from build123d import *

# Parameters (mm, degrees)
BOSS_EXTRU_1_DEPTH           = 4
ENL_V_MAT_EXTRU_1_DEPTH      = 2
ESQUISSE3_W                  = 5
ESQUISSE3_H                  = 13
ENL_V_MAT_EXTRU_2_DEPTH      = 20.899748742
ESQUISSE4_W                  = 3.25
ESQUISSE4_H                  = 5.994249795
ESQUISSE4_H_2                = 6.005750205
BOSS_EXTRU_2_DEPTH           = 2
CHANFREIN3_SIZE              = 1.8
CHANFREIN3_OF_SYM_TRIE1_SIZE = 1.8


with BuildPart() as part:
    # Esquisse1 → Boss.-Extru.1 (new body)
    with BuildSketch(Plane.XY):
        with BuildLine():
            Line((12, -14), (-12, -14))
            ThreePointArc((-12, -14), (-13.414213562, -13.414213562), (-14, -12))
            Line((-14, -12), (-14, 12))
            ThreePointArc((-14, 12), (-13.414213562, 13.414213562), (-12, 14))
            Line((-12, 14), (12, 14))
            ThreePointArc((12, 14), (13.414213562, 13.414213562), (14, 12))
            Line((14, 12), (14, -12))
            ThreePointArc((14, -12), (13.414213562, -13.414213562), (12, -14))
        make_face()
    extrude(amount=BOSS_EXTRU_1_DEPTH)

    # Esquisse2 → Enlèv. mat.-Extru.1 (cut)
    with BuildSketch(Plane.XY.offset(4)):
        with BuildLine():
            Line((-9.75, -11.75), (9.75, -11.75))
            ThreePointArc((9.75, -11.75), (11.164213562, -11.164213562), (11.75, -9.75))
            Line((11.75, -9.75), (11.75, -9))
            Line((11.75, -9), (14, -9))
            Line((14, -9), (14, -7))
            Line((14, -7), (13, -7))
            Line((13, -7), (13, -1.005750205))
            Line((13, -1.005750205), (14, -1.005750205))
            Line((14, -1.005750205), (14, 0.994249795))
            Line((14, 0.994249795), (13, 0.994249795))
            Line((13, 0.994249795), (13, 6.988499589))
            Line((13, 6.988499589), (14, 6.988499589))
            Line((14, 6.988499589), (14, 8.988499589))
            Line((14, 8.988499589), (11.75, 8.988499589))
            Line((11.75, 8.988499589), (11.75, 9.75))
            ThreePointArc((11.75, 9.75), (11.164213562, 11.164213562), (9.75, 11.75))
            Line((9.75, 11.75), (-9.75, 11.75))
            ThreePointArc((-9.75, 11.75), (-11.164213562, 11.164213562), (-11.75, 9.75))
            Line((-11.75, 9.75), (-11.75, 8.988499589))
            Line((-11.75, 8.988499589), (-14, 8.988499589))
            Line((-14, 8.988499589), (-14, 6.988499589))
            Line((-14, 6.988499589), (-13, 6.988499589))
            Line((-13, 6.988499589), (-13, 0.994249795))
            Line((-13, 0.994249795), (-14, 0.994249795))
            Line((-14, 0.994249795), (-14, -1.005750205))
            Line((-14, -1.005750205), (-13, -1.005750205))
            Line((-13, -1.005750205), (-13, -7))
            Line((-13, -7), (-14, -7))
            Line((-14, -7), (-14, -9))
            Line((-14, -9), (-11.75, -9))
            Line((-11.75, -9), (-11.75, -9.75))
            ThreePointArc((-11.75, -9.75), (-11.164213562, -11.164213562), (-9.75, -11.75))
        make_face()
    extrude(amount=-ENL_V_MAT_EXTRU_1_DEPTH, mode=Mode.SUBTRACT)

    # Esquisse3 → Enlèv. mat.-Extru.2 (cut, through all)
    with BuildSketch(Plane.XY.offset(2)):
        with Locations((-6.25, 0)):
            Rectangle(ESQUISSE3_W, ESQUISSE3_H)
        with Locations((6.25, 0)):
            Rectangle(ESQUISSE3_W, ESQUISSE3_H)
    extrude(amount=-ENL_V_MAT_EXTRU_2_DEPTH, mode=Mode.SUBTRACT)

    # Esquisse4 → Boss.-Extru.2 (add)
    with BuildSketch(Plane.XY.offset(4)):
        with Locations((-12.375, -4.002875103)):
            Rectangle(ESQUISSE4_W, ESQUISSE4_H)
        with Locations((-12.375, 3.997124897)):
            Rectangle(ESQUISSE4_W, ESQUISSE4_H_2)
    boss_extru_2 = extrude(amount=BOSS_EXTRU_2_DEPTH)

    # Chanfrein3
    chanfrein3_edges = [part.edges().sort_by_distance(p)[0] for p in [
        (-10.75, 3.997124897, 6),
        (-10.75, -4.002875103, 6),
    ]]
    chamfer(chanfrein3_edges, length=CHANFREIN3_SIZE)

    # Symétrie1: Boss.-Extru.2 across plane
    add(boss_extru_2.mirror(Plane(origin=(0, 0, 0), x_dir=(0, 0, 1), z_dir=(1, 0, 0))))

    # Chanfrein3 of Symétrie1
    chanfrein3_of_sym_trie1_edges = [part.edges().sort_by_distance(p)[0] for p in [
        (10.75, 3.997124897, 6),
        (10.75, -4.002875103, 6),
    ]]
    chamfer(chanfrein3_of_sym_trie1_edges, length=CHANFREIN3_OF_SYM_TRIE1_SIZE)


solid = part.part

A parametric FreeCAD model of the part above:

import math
import FreeCAD as App
import Part
import Sketcher
from FreeCAD import Vector


def edges_at(feature, points):
    """Names of the edges that pass closest to the given points."""
    edges = feature.Shape.Edges
    near = lambda p: min(range(len(edges)), key=lambda i: edges[i].distToShape(Part.Vertex(*p))[0])
    return sorted({f"Edge{near(p) + 1}" for p in points})


def add_polygon(sketch, points):
    """Adds a closed chain of lines whose ends are joined by coincident constraints."""
    first, n = sketch.GeometryCount, len(points)
    for a, b in zip(points, points[1:] + points[:1]):
        sketch.addGeometry(Part.LineSegment(App.Vector(*a, 0), App.Vector(*b, 0)), False)
    for i in range(n):
        sketch.addConstraint(Sketcher.Constraint("Coincident", first + i, 2, first + (i + 1) % n, 1))

doc = App.newDocument("Part")
params = doc.addObject("Spreadsheet::Sheet", "Params")
for row, (alias, value) in enumerate([
    ("sketch1_radius", "2 mm"),
    ("sketch1_width", "24 mm"),
    ("pad1_length", "4 mm"),
    ("sketch2_radius", "2 mm"),
    ("sketch2_width", "1 mm"),
    ("sketch2_height", "2 mm"),
    ("sketch2_width2", "19.5 mm"),
    ("sketch2_height2", "0.75 mm"),
    ("pocket1_length", "2 mm"),
    ("sketch3_width", "5 mm"),
    ("sketch3_height", "13 mm"),
    ("sketch4_width", "3.25 mm"),
    ("pad2_length", "2 mm"),
    ("chamfer_size", "1.8 mm"),
    ("chamfer2_size", "1.8 mm"),
], start=1):
    params.set(f"A{row}", alias)
    params.set(f"B{row}", "=" + value)
    params.setAlias(f"B{row}", alias)

body = doc.addObject("PartDesign::Body", "Body")

# Sketch on XY plane
sketch1 = body.newObject("Sketcher::SketchObject", "Sketch")
sketch1.AttachmentSupport = (doc.getObject("XY_Plane"), [""])
sketch1.MapMode = "FlatFace"
sketch1.addGeometry([
    Part.LineSegment(Vector(-12, -14, 0), Vector(12, -14, 0)),  # 0
    Part.ArcOfCircle(Part.Circle(Vector(12, -12, 0), Vector(0, 0, 1), 2), math.radians(-90), math.radians(0)),  # 1
    Part.LineSegment(Vector(14, -12, 0), Vector(14, 12, 0)),  # 2
    Part.ArcOfCircle(Part.Circle(Vector(12, 12, 0), Vector(0, 0, 1), 2), math.radians(0), math.radians(90)),  # 3
    Part.LineSegment(Vector(12, 14, 0), Vector(-12, 14, 0)),  # 4
    Part.ArcOfCircle(Part.Circle(Vector(-12, 12, 0), Vector(0, 0, 1), 2), math.radians(90), math.radians(180)),  # 5
    Part.LineSegment(Vector(-14, 12, 0), Vector(-14, -12, 0)),  # 6
    Part.ArcOfCircle(Part.Circle(Vector(-12, -12, 0), Vector(0, 0, 1), 2), math.radians(-180), math.radians(-90)),  # 7
], False)
sketch1.addConstraint([
    Sketcher.Constraint("Tangent", 0, 2, 1, 1),
    Sketcher.Constraint("Tangent", 1, 2, 2, 1),
    Sketcher.Constraint("Tangent", 2, 2, 3, 1),
    Sketcher.Constraint("Tangent", 3, 2, 4, 1),
    Sketcher.Constraint("Tangent", 4, 2, 5, 1),
    Sketcher.Constraint("Tangent", 5, 2, 6, 1),
    Sketcher.Constraint("Tangent", 6, 2, 7, 1),
    Sketcher.Constraint("Tangent", 7, 2, 0, 1),
    Sketcher.Constraint("Horizontal", 0),
    Sketcher.Constraint("Vertical", 2),
    Sketcher.Constraint("Horizontal", 4),
    Sketcher.Constraint("Vertical", 6),
    Sketcher.Constraint("Equal", 1, 3),
    Sketcher.Constraint("Equal", 3, 5),
    Sketcher.Constraint("Equal", 5, 7),
    Sketcher.Constraint("Symmetric", 1, 3, 5, 3, -1, 1),
    Sketcher.Constraint("Equal", 4, 2),
    Sketcher.Constraint("Radius", 1, 2.0),
    Sketcher.Constraint("DistanceX", 0, 1, 0, 2, 24.0),
])
sketch1.setExpression("Constraints[17]", "Params.sketch1_radius")
sketch1.setExpression("Constraints[18]", "Params.sketch1_width")
pad1 = body.newObject("PartDesign::Pad", "Pad")
pad1.Profile = sketch1
pad1.setExpression("Length", "Params.pad1_length")

# Sketch on XY plane
sketch2 = body.newObject("Sketcher::SketchObject", "Sketch001")
sketch2.AttachmentSupport = (doc.getObject("XY_Plane"), [""])
sketch2.MapMode = "FlatFace"
sketch2.AttachmentOffset = App.Placement(Vector(0, 0, 4), App.Rotation())
sketch2.addGeometry([
    Part.LineSegment(Vector(-9.8, -11.8, 0), Vector(9.8, -11.8, 0)),  # 0
    Part.ArcOfCircle(Part.Circle(Vector(9.7, -9.7, 0), Vector(0, 0, 1), 2), math.radians(-90), math.radians(0)),  # 1
    Part.LineSegment(Vector(11.8, -9.8, 0), Vector(11.8, -9, 0)),  # 2
    Part.LineSegment(Vector(11.8, -9, 0), Vector(14, -9, 0)),  # 3
    Part.LineSegment(Vector(14, -9, 0), Vector(14, -7, 0)),  # 4
    Part.LineSegment(Vector(14, -7, 0), Vector(13, -7, 0)),  # 5
    Part.LineSegment(Vector(13, -7, 0), Vector(13, -1, 0)),  # 6
    Part.LineSegment(Vector(13, -1, 0), Vector(14, -1, 0)),  # 7
    Part.LineSegment(Vector(14, -1, 0), Vector(14, 1, 0)),  # 8
    Part.LineSegment(Vector(14, 1, 0), Vector(13, 1, 0)),  # 9
    Part.LineSegment(Vector(13, 1, 0), Vector(13, 7, 0)),  # 10
    Part.LineSegment(Vector(13, 7, 0), Vector(14, 7, 0)),  # 11
    Part.LineSegment(Vector(14, 7, 0), Vector(14, 9, 0)),  # 12
    Part.LineSegment(Vector(14, 9, 0), Vector(11.8, 9, 0)),  # 13
    Part.LineSegment(Vector(11.8, 9, 0), Vector(11.8, 9.8, 0)),  # 14
    Part.ArcOfCircle(Part.Circle(Vector(9.7, 9.7, 0), Vector(0, 0, 1), 2), math.radians(0), math.radians(90)),  # 15
    Part.LineSegment(Vector(9.8, 11.8, 0), Vector(-9.8, 11.8, 0)),  # 16
    Part.ArcOfCircle(Part.Circle(Vector(-9.7, 9.7, 0), Vector(0, 0, 1), 2), math.radians(90), math.radians(180)),  # 17
    Part.LineSegment(Vector(-11.8, 9.8, 0), Vector(-11.8, 9, 0)),  # 18
    Part.LineSegment(Vector(-11.8, 9, 0), Vector(-14, 9, 0)),  # 19
    Part.LineSegment(Vector(-14, 9, 0), Vector(-14, 7, 0)),  # 20
    Part.LineSegment(Vector(-14, 7, 0), Vector(-13, 7, 0)),  # 21
    Part.LineSegment(Vector(-13, 7, 0), Vector(-13, 1, 0)),  # 22
    Part.LineSegment(Vector(-13, 1, 0), Vector(-14, 1, 0)),  # 23
    Part.LineSegment(Vector(-14, 1, 0), Vector(-14, -1, 0)),  # 24
    Part.LineSegment(Vector(-14, -1, 0), Vector(-13, -1, 0)),  # 25
    Part.LineSegment(Vector(-13, -1, 0), Vector(-13, -7, 0)),  # 26
    Part.LineSegment(Vector(-13, -7, 0), Vector(-14, -7, 0)),  # 27
    Part.LineSegment(Vector(-14, -7, 0), Vector(-14, -9, 0)),  # 28
    Part.LineSegment(Vector(-14, -9, 0), Vector(-11.8, -9, 0)),  # 29
    Part.LineSegment(Vector(-11.8, -9, 0), Vector(-11.8, -9.8, 0)),  # 30
    Part.ArcOfCircle(Part.Circle(Vector(-9.7, -9.7, 0), Vector(0, 0, 1), 2), math.radians(-180), math.radians(-90)),  # 31
], False)
sketch2.addConstraint([
    Sketcher.Constraint("Tangent", 0, 2, 1, 1),
    Sketcher.Constraint("Tangent", 1, 2, 2, 1),
    Sketcher.Constraint("Coincident", 2, 2, 3, 1),
    Sketcher.Constraint("Coincident", 3, 2, 4, 1),
    Sketcher.Constraint("Coincident", 4, 2, 5, 1),
    Sketcher.Constraint("Coincident", 5, 2, 6, 1),
    Sketcher.Constraint("Coincident", 6, 2, 7, 1),
    Sketcher.Constraint("Coincident", 7, 2, 8, 1),
    Sketcher.Constraint("Coincident", 8, 2, 9, 1),
    Sketcher.Constraint("Coincident", 9, 2, 10, 1),
    Sketcher.Constraint("Coincident", 10, 2, 11, 1),
    Sketcher.Constraint("Coincident", 11, 2, 12, 1),
    Sketcher.Constraint("Coincident", 12, 2, 13, 1),
    Sketcher.Constraint("Coincident", 13, 2, 14, 1),
    Sketcher.Constraint("Tangent", 14, 2, 15, 1),
    Sketcher.Constraint("Tangent", 15, 2, 16, 1),
    Sketcher.Constraint("Tangent", 16, 2, 17, 1),
    Sketcher.Constraint("Tangent", 17, 2, 18, 1),
    Sketcher.Constraint("Coincident", 18, 2, 19, 1),
    Sketcher.Constraint("Coincident", 19, 2, 20, 1),
    Sketcher.Constraint("Coincident", 20, 2, 21, 1),
    Sketcher.Constraint("Coincident", 21, 2, 22, 1),
    Sketcher.Constraint("Coincident", 22, 2, 23, 1),
    Sketcher.Constraint("Coincident", 23, 2, 24, 1),
    Sketcher.Constraint("Coincident", 24, 2, 25, 1),
    Sketcher.Constraint("Coincident", 25, 2, 26, 1),
    Sketcher.Constraint("Coincident", 26, 2, 27, 1),
    Sketcher.Constraint("Coincident", 27, 2, 28, 1),
    Sketcher.Constraint("Coincident", 28, 2, 29, 1),
    Sketcher.Constraint("Coincident", 29, 2, 30, 1),
    Sketcher.Constraint("Tangent", 30, 2, 31, 1),
    Sketcher.Constraint("Tangent", 31, 2, 0, 1),
    Sketcher.Constraint("Horizontal", 0),
    Sketcher.Constraint("Vertical", 2),
    Sketcher.Constraint("Horizontal", 3),
    Sketcher.Constraint("Vertical", 4),
    Sketcher.Constraint("Horizontal", 5),
    Sketcher.Constraint("Vertical", 6),
    Sketcher.Constraint("Horizontal", 7),
    Sketcher.Constraint("Vertical", 8),
    Sketcher.Constraint("Horizontal", 9),
    Sketcher.Constraint("Vertical", 10),
    Sketcher.Constraint("Horizontal", 11),
    Sketcher.Constraint("Vertical", 12),
    Sketcher.Constraint("Horizontal", 13),
    Sketcher.Constraint("Vertical", 14),
    Sketcher.Constraint("Horizontal", 16),
    Sketcher.Constraint("Vertical", 18),
    Sketcher.Constraint("Horizontal", 19),
    Sketcher.Constraint("Vertical", 20),
    Sketcher.Constraint("Horizontal", 21),
    Sketcher.Constraint("Vertical", 22),
    Sketcher.Constraint("Horizontal", 23),
    Sketcher.Constraint("Vertical", 24),
    Sketcher.Constraint("Horizontal", 25),
    Sketcher.Constraint("Vertical", 26),
    Sketcher.Constraint("Horizontal", 27),
    Sketcher.Constraint("Vertical", 28),
    Sketcher.Constraint("Horizontal", 29),
    Sketcher.Constraint("Vertical", 30),
    Sketcher.Constraint("Equal", 1, 15),
    Sketcher.Constraint("Equal", 15, 17),
    Sketcher.Constraint("Equal", 17, 31),
    Sketcher.Constraint("Symmetric", 1, 3, 17, 3, -1, 1),
    Sketcher.Constraint("Symmetric", 13, 2, 18, 2, -2),
    Sketcher.Constraint("Symmetric", 11, 2, 20, 2, -2),
    Sketcher.Constraint("Symmetric", 9, 2, 22, 2, -2),
    Sketcher.Constraint("Symmetric", 7, 2, 24, 2, -2),
    Sketcher.Constraint("Symmetric", 5, 2, 26, 2, -2),
    Sketcher.Constraint("Symmetric", 3, 2, 28, 2, -2),
    Sketcher.Constraint("Vertical", 17, 3, 31, 3),
    Sketcher.Constraint("Vertical", 4, 2, 7, 2),
    Sketcher.Constraint("Vertical", 6, 2, 9, 2),
    Sketcher.Constraint("Vertical", 8, 2, 11, 2),
    Sketcher.Constraint("Equal", 4, 8),
    Sketcher.Constraint("Equal", 6, 10),
    Sketcher.Constraint("Equal", 8, 12),
    Sketcher.Constraint("Radius", 1, 2.0),
    Sketcher.Constraint("DistanceX", 5, 2, 5, 1, 1.0),
    Sketcher.Constraint("DistanceY", 4, 1, 4, 2, 2.0),
    Sketcher.Constraint("DistanceX", 0, 1, 0, 2, 19.5),
    Sketcher.Constraint("DistanceY", 2, 2, -1, 1, 9.0),
    Sketcher.Constraint("DistanceX", -1, 1, 3, 2, 14.0),
    Sketcher.Constraint("DistanceY", 2, 1, 2, 2, 0.75),
    Sketcher.Constraint("DistanceY", 14, 1, 14, 2, 0.7615),
])
sketch2.setExpression("Constraints[77]", "Params.sketch2_radius")
sketch2.setExpression("Constraints[78]", "Params.sketch2_width")
sketch2.setExpression("Constraints[79]", "Params.sketch2_height")
sketch2.setExpression("Constraints[80]", "Params.sketch2_width2")
sketch2.setExpression("Constraints[83]", "Params.sketch2_height2")
pocket1 = body.newObject("PartDesign::Pocket", "Pocket")
pocket1.Profile = sketch2
pocket1.setExpression("Length", "Params.pocket1_length")

# Sketch on XY plane
sketch3 = body.newObject("Sketcher::SketchObject", "Sketch002")
sketch3.AttachmentSupport = (doc.getObject("XY_Plane"), [""])
sketch3.MapMode = "FlatFace"
sketch3.AttachmentOffset = App.Placement(Vector(0, 0, 2), App.Rotation())
add_polygon(sketch3, [(-9, 6), (-9, -6), (-4, -6), (-4, 6)])  # lines 0-3
add_polygon(sketch3, [(4, 6), (4, -6), (9, -6), (9, 6)])  # lines 4-7
sketch3.addConstraint([
    Sketcher.Constraint("Vertical", 0),
    Sketcher.Constraint("Horizontal", 1),
    Sketcher.Constraint("Vertical", 2),
    Sketcher.Constraint("Horizontal", 3),
    Sketcher.Constraint("Vertical", 4),
    Sketcher.Constraint("Horizontal", 5),
    Sketcher.Constraint("Vertical", 6),
    Sketcher.Constraint("Horizontal", 7),
    Sketcher.Constraint("Symmetric", 2, 2, 4, 2, -1, 1),
    Sketcher.Constraint("Symmetric", 0, 2, 6, 2, -1, 1),
    Sketcher.Constraint("Horizontal", 1, 2, 4, 2),
    Sketcher.Constraint("DistanceX", 1, 1, 1, 2, 5.0),
    Sketcher.Constraint("DistanceY", 0, 2, 0, 1, 13.0),
    Sketcher.Constraint("DistanceX", 1, 2, 4, 2, 7.5),
])
sketch3.setExpression("Constraints[19]", "Params.sketch3_width")
sketch3.setExpression("Constraints[20]", "Params.sketch3_height")
pocket2 = body.newObject("PartDesign::Pocket", "Pocket001")
pocket2.Profile = sketch3
pocket2.Type = "ThroughAll"

# Sketch on XY plane
sketch4 = body.newObject("Sketcher::SketchObject", "Sketch003")
sketch4.AttachmentSupport = (doc.getObject("XY_Plane"), [""])
sketch4.MapMode = "FlatFace"
sketch4.AttachmentOffset = App.Placement(Vector(0, 0, 4), App.Rotation())
add_polygon(sketch4, [(-14, -1), (-14, -7), (-10.8, -7), (-10.8, -1)])  # lines 0-3
add_polygon(sketch4, [(-14, 7), (-14, 1), (-10.8, 1), (-10.8, 7)])  # lines 4-7
sketch4.addConstraint([
    Sketcher.Constraint("Vertical", 0),
    Sketcher.Constraint("Horizontal", 1),
    Sketcher.Constraint("Vertical", 2),
    Sketcher.Constraint("Horizontal", 3),
    Sketcher.Constraint("Vertical", 4),
    Sketcher.Constraint("Horizontal", 5),
    Sketcher.Constraint("Vertical", 6),
    Sketcher.Constraint("Horizontal", 7),
    Sketcher.Constraint("Symmetric", 1, 2, 6, 2, -1),
    Sketcher.Constraint("Vertical", 3, 2, 4, 2),
    Sketcher.Constraint("DistanceX", 0, 2, -1, 1, 14.0),
    Sketcher.Constraint("DistanceY", 0, 2, -1, 1, 7.0),
    Sketcher.Constraint("DistanceY", 3, 2, 4, 2, 2.0),
    Sketcher.Constraint("DistanceX", 1, 1, 1, 2, 3.25),
    Sketcher.Constraint("DistanceY", 0, 2, 0, 1, 5.99425),
])
sketch4.setExpression("Constraints[21]", "Params.sketch4_width")
pad2 = body.newObject("PartDesign::Pad", "Pad001")
pad2.Profile = sketch4
pad2.setExpression("Length", "Params.pad2_length")
doc.recompute()

chamfer = body.newObject("PartDesign::Chamfer", "Chamfer")
chamfer.Base = (pad2, edges_at(pad2, [(-10.75, 3.997, 6), (-10.75, -4.003, 6)]))
chamfer.setExpression("Size", "Params.chamfer_size")
doc.recompute()

mirrored = body.newObject("PartDesign::Mirrored", "Mirrored")
mirrored.Originals = [pad2]
mirrored.MirrorPlane = (doc.getObject("YZ_Plane"), [""])
body.Tip = mirrored
doc.recompute()

chamfer2 = body.newObject("PartDesign::Chamfer", "Chamfer001")
chamfer2.Base = (mirrored, edges_at(mirrored, [(10.75, 3.997, 6), (10.75, -4.003, 6)]))
chamfer2.setExpression("Size", "Params.chamfer2_size")

doc.recompute()
